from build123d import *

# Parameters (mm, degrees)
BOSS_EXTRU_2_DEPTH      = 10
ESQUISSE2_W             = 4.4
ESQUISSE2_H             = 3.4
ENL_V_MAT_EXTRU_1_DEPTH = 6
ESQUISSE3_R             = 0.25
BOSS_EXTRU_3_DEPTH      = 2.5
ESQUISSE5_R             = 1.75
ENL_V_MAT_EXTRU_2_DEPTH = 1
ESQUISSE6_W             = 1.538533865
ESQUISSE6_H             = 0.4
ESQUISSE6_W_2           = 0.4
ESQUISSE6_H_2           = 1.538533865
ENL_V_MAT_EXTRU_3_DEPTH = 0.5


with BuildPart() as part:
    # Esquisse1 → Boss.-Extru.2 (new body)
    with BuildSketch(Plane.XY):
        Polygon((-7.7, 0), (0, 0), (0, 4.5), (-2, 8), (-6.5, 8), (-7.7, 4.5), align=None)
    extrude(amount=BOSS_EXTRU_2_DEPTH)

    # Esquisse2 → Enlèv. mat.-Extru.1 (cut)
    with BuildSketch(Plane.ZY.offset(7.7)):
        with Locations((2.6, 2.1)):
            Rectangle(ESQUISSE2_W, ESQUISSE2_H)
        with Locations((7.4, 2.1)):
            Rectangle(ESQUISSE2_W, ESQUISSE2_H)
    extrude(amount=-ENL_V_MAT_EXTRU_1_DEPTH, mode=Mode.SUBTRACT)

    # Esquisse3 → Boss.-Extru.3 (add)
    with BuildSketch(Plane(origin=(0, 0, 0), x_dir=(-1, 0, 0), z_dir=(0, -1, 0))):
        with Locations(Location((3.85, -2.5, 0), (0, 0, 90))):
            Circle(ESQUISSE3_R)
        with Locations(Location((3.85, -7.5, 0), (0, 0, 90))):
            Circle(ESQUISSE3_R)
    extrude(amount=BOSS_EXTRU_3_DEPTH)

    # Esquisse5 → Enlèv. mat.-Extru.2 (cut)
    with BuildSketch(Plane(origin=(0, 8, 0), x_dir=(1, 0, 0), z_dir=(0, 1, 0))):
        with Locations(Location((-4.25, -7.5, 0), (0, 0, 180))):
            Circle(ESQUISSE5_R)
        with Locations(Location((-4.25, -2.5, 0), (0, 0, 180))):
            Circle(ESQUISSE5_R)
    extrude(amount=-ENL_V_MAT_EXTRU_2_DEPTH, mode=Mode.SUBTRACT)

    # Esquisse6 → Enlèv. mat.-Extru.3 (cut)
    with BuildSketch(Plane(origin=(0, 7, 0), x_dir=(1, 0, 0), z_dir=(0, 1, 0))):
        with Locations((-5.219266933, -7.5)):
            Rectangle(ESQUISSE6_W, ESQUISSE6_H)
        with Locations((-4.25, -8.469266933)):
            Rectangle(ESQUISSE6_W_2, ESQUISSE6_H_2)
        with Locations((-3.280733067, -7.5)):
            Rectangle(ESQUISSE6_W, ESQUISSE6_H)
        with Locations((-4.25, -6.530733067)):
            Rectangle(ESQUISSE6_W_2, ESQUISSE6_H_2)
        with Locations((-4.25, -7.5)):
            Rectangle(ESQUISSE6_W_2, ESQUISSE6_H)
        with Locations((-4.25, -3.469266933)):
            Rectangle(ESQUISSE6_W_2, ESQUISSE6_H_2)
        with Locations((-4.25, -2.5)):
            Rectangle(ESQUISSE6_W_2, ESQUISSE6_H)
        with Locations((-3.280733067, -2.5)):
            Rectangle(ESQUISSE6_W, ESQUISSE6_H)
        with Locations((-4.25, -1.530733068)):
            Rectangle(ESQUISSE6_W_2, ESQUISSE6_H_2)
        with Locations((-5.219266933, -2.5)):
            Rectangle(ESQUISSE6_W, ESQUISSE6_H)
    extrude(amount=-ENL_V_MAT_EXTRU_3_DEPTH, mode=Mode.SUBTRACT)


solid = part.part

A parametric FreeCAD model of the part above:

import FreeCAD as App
import Part
import Sketcher
from FreeCAD import Vector
Q = App.Units.Quantity

doc = App.newDocument("Part")
body = doc.addObject("PartDesign::Body", "Body")

sketch1 = doc.addObject("Sketcher::SketchObject", "Sketch")
body.addObject(sketch1)
sketch1.AttachmentSupport = (doc.XY_Plane, [""])
sketch1.MapMode = "FlatFace"
sketch1.addGeometry(Part.LineSegment(Vector(-7.7, 0, 0), Vector(0, 0, 0)), False)
sketch1.addGeometry(Part.LineSegment(Vector(0, 0, 0), Vector(0, 4.5, 0)), False)
sketch1.addGeometry(Part.LineSegment(Vector(0, 4.5, 0), Vector(-2, 8, 0)), False)
sketch1.addGeometry(Part.LineSegment(Vector(-2, 8, 0), Vector(-6.5, 8, 0)), False)
sketch1.addGeometry(Part.LineSegment(Vector(-6.5, 8, 0), Vector(-7.7, 4.5, 0)), False)
sketch1.addGeometry(Part.LineSegment(Vector(-7.7, 4.5, 0), Vector(-7.7, 0, 0)), False)
sketch1.addConstraint(Sketcher.Constraint("Coincident", 0, 2, 1, 1))
sketch1.addConstraint(Sketcher.Constraint("Coincident", 1, 2, 2, 1))
sketch1.addConstraint(Sketcher.Constraint("Coincident", 2, 2, 3, 1))
sketch1.addConstraint(Sketcher.Constraint("Coincident", 3, 2, 4, 1))
sketch1.addConstraint(Sketcher.Constraint("Coincident", 4, 2, 5, 1))
sketch1.addConstraint(Sketcher.Constraint("Coincident", 5, 2, 0, 1))
sketch1.addConstraint(Sketcher.Constraint("Horizontal", 0))
sketch1.addConstraint(Sketcher.Constraint("Vertical", 1))
sketch1.addConstraint(Sketcher.Constraint("Horizontal", 3))
sketch1.addConstraint(Sketcher.Constraint("Vertical", 5))
sketch1.addConstraint(Sketcher.Constraint("Coincident", 0, 2, -1, 1))
sketch1.addConstraint(Sketcher.Constraint("Horizontal", 1, 2, 4, 2))
sketch1.addConstraint(Sketcher.Constraint("Equal", 3, 1))
sketch1.addConstraint(Sketcher.Constraint("DistanceX", 0, 1, 0, 2, Q("7.7 mm")))
sketch1.addConstraint(Sketcher.Constraint("DistanceX", 3, 2, 3, 1, Q("4.5 mm")))
sketch1.addConstraint(Sketcher.Constraint("DistanceX", 2, 2, -1, 1, Q("2 mm")))
sketch1.addConstraint(Sketcher.Constraint("DistanceY", -1, 1, 2, 2, Q("8 mm")))
pad1 = doc.addObject("PartDesign::Pad", "Pad")
body.addObject(pad1)
pad1.Profile = sketch1
pad1.Length = 10

sketch2 = doc.addObject("Sketcher::SketchObject", "Sketch001")
body.addObject(sketch2)
sketch2.AttachmentSupport = (doc.YZ_Plane, [""])
sketch2.MapMode = "FlatFace"
sketch2.AttachmentOffset = App.Placement(Vector(0, 0, -7.7), App.Rotation())
sketch2.addGeometry(Part.LineSegment(Vector(3.8, 0.4, 0), Vector(0.4, 0.4, 0)), False)
sketch2.addGeometry(Part.LineSegment(Vector(0.4, 0.4, 0), Vector(0.4, 4.8, 0)), False)
sketch2.addGeometry(Part.LineSegment(Vector(0.4, 4.8, 0), Vector(3.8, 4.8, 0)), False)
sketch2.addGeometry(Part.LineSegment(Vector(3.8, 4.8, 0), Vector(3.8, 0.4, 0)), False)
sketch2.addGeometry(Part.LineSegment(Vector(3.8, 5.2, 0), Vector(0.4, 5.2, 0)), False)
sketch2.addGeometry(Part.LineSegment(Vector(0.4, 5.2, 0), Vector(0.4, 9.6, 0)), False)
sketch2.addGeometry(Part.LineSegment(Vector(0.4, 9.6, 0), Vector(3.8, 9.6, 0)), False)
sketch2.addGeometry(Part.LineSegment(Vector(3.8, 9.6, 0), Vector(3.8, 5.2, 0)), False)
sketch2.addConstraint(Sketcher.Constraint("Coincident", 0, 2, 1, 1))
sketch2.addConstraint(Sketcher.Constraint("Coincident", 1, 2, 2, 1))
sketch2.addConstraint(Sketcher.Constraint("Coincident", 2, 2, 3, 1))
sketch2.addConstraint(Sketcher.Constraint("Coincident", 3, 2, 0, 1))
sketch2.addConstraint(Sketcher.Constraint("Coincident", 4, 2, 5, 1))
sketch2.addConstraint(Sketcher.Constraint("Coincident", 5, 2, 6, 1))
sketch2.addConstraint(Sketcher.Constraint("Coincident", 6, 2, 7, 1))
sketch2.addConstraint(Sketcher.Constraint("Coincident", 7, 2, 4, 1))
sketch2.addConstraint(Sketcher.Constraint("Horizontal", 0))
sketch2.addConstraint(Sketcher.Constraint("Vertical", 1))
sketch2.addConstraint(Sketcher.Constraint("Horizontal", 2))
sketch2.addConstraint(Sketcher.Constraint("Vertical", 3))
sketch2.addConstraint(Sketcher.Constraint("Horizontal", 4))
sketch2.addConstraint(Sketcher.Constraint("Vertical", 5))
sketch2.addConstraint(Sketcher.Constraint("Horizontal", 6))
sketch2.addConstraint(Sketcher.Constraint("Vertical", 7))
sketch2.addConstraint(Sketcher.Constraint("Vertical", 1, 2, 4, 2))
sketch2.addConstraint(Sketcher.Constraint("Vertical", 3, 2, 6, 2))
sketch2.addConstraint(Sketcher.Constraint("Equal", 3, 5))
sketch2.addConstraint(Sketcher.Constraint("DistanceX", 0, 2, 0, 1, Q("3.4 mm")))
sketch2.addConstraint(Sketcher.Constraint("DistanceY", 1, 1, 1, 2, Q("4.4 mm")))
sketch2.addConstraint(Sketcher.Constraint("DistanceX", -1, 1, 0, 2, Q("0.4 mm")))
sketch2.addConstraint(Sketcher.Constraint("DistanceY", -1, 1, 0, 2, Q("0.4 mm")))
sketch2.addConstraint(Sketcher.Constraint("DistanceY", -1, 1, 4, 2, Q("5.2 mm")))
pocket1 = doc.addObject("PartDesign::Pocket", "Pocket")
body.addObject(pocket1)
pocket1.Profile = sketch2
pocket1.Length = 6
pocket1.Reversed = True

sketch3 = doc.addObject("Sketcher::SketchObject", "Sketch002")
body.addObject(sketch3)
sketch3.AttachmentSupport = (doc.XZ_Plane, [""])
sketch3.MapMode = "FlatFace"
sketch3.addGeometry(Part.Circle(Vector(-3.85, 2.5, 0), Vector(0, 0, 1), 0.25), False)
sketch3.addGeometry(Part.Circle(Vector(-3.85, 7.5, 0), Vector(0, 0, 1), 0.25), False)
sketch3.addConstraint(Sketcher.Constraint("Equal", 0, 1))
sketch3.addConstraint(Sketcher.Constraint("Vertical", 0, 3, 1, 3))
sketch3.addConstraint(Sketcher.Constraint("Diameter", 0, Q("0.5 mm")))
sketch3.addConstraint(Sketcher.Constraint("DistanceY", 0, 3, 1, 3, Q("5 mm")))
sketch3.addConstraint(Sketcher.Constraint("DistanceY", -1, 1, 0, 3, Q("2.5 mm")))
sketch3.addConstraint(Sketcher.Constraint("DistanceX", 0, 3, -1, 1, Q("3.85 mm")))
pad2 = doc.addObject("PartDesign::Pad", "Pad001")
body.addObject(pad2)
pad2.Profile = sketch3
pad2.Length = 2.5

sketch4 = doc.addObject("Sketcher::SketchObject", "Sketch003")
body.addObject(sketch4)
sketch4.AttachmentSupport = (doc.XZ_Plane, [""])
sketch4.MapMode = "FlatFace"
sketch4.AttachmentOffset = App.Placement(Vector(0, 0, -8), App.Rotation())
sketch4.addGeometry(Part.Circle(Vector(-4.2, 7.5, 0), Vector(0, 0, 1), 1.8), False)
sketch4.addGeometry(Part.Circle(Vector(-4.2, 2.5, 0), Vector(0, 0, 1), 1.8), False)
sketch4.addConstraint(Sketcher.Constraint("Equal", 0, 1))
sketch4.addConstraint(Sketcher.Constraint("Vertical", 0, 3, 1, 3))
sketch4.addConstraint(Sketcher.Constraint("Diameter", 0, Q("3.5 mm")))
sketch4.addConstraint(Sketcher.Constraint("DistanceY", 1, 3, 0, 3, Q("5 mm")))
sketch4.addConstraint(Sketcher.Constraint("DistanceY", -1, 1, 0, 3, Q("7.5 mm")))
sketch4.addConstraint(Sketcher.Constraint("DistanceX", 0, 3, -1, 1, Q("4.25 mm")))
pocket2 = doc.addObject("PartDesign::Pocket", "Pocket001")
body.addObject(pocket2)
pocket2.Profile = sketch4
pocket2.Length = 1
pocket2.Reversed = True

sketch5 = doc.addObject("Sketcher::SketchObject", "Sketch004")
body.addObject(sketch5)
sketch5.AttachmentSupport = (doc.XZ_Plane, [""])
sketch5.MapMode = "FlatFace"
sketch5.AttachmentOffset = App.Placement(Vector(0, 0, -7), App.Rotation())
sketch5.addGeometry(Part.LineSegment(Vector(-5.99, 7.3, 0), Vector(-5.99, 7.7, 0)), False)
sketch5.addGeometry(Part.LineSegment(Vector(-5.99, 7.7, 0), Vector(-4.45, 7.7, 0)), False)
sketch5.addGeometry(Part.LineSegment(Vector(-4.45, 7.7, 0), Vector(-4.45, 9.24, 0)), False)
sketch5.addGeometry(Part.LineSegment(Vector(-4.45, 9.24, 0), Vector(-4.05, 9.24, 0)), False)
sketch5.addGeometry(Part.LineSegment(Vector(-4.05, 9.24, 0), Vector(-4.05, 7.7, 0)), False)
sketch5.addGeometry(Part.LineSegment(Vector(-4.05, 7.7, 0), Vector(-2.51, 7.7, 0)), False)
sketch5.addGeometry(Part.LineSegment(Vector(-2.51, 7.7, 0), Vector(-2.51, 7.3, 0)), False)
sketch5.addGeometry(Part.LineSegment(Vector(-2.51, 7.3, 0), Vector(-4.05, 7.3, 0)), False)
sketch5.addGeometry(Part.LineSegment(Vector(-4.05, 7.3, 0), Vector(-4.05, 5.76, 0)), False)
sketch5.addGeometry(Part.LineSegment(Vector(-4.05, 5.76, 0), Vector(-4.45, 5.76, 0)), False)
sketch5.addGeometry(Part.LineSegment(Vector(-4.45, 5.76, 0), Vector(-4.45, 7.3, 0)), False)
sketch5.addGeometry(Part.LineSegment(Vector(-4.45, 7.3, 0), Vector(-5.99, 7.3, 0)), False)
sketch5.addGeometry(Part.LineSegment(Vector(-4.45, 4.24, 0), Vector(-4.05, 4.24, 0)), False)
sketch5.addGeometry(Part.LineSegment(Vector(-4.05, 4.24, 0), Vector(-4.05, 2.7, 0)), False)
sketch5.addGeometry(Part.LineSegment(Vector(-4.05, 2.7, 0), Vector(-2.51, 2.7, 0)), False)
sketch5.addGeometry(Part.LineSegment(Vector(-2.51, 2.7, 0), Vector(-2.51, 2.3, 0)), False)
sketch5.addGeometry(Part.LineSegment(Vector(-2.51, 2.3, 0), Vector(-4.05, 2.3, 0)), False)
sketch5.addGeometry(Part.LineSegment(Vector(-4.05, 2.3, 0), Vector(-4.05, 0.76, 0)), False)
sketch5.addGeometry(Part.LineSegment(Vector(-4.05, 0.76, 0), Vector(-4.45, 0.76, 0)), False)
sketch5.addGeometry(Part.LineSegment(Vector(-4.45, 0.76, 0), Vector(-4.45, 2.3, 0)), False)
sketch5.addGeometry(Part.LineSegment(Vector(-4.45, 2.3, 0), Vector(-5.99, 2.3, 0)), False)
sketch5.addGeometry(Part.LineSegment(Vector(-5.99, 2.3, 0), Vector(-5.99, 2.7, 0)), False)
sketch5.addGeometry(Part.LineSegment(Vector(-5.99, 2.7, 0), Vector(-4.45, 2.7, 0)), False)
sketch5.addGeometry(Part.LineSegment(Vector(-4.45, 2.7, 0), Vector(-4.45, 4.24, 0)), False)
sketch5.addConstraint(Sketcher.Constraint("Coincident", 0, 2, 1, 1))
sketch5.addConstraint(Sketcher.Constraint("Coincident", 1, 2, 2, 1))
sketch5.addConstraint(Sketcher.Constraint("Coincident", 2, 2, 3, 1))
sketch5.addConstraint(Sketcher.Constraint("Coincident", 3, 2, 4, 1))
sketch5.addConstraint(Sketcher.Constraint("Coincident", 4, 2, 5, 1))
sketch5.addConstraint(Sketcher.Constraint("Coincident", 5, 2, 6, 1))
sketch5.addConstraint(Sketcher.Constraint("Coincident", 6, 2, 7, 1))
sketch5.addConstraint(Sketcher.Constraint("Coincident", 7, 2, 8, 1))
sketch5.addConstraint(Sketcher.Constraint("Coincident", 8, 2, 9, 1))
sketch5.addConstraint(Sketcher.Constraint("Coincident", 9, 2, 10, 1))
sketch5.addConstraint(Sketcher.Constraint("Coincident", 10, 2, 11, 1))
sketch5.addConstraint(Sketcher.Constraint("Coincident", 11, 2, 0, 1))
sketch5.addConstraint(Sketcher.Constraint("Coincident", 12, 2, 13, 1))
sketch5.addConstraint(Sketcher.Constraint("Coincident", 13, 2, 14, 1))
sketch5.addConstraint(Sketcher.Constraint("Coincident", 14, 2, 15, 1))
sketch5.addConstraint(Sketcher.Constraint("Coincident", 15, 2, 16, 1))
sketch5.addConstraint(Sketcher.Constraint("Coincident", 16, 2, 17, 1))
sketch5.addConstraint(Sketcher.Constraint("Coincident", 17, 2, 18, 1))
sketch5.addConstraint(Sketcher.Constraint("Coincident", 18, 2, 19, 1))
sketch5.addConstraint(Sketcher.Constraint("Coincident", 19, 2, 20, 1))
sketch5.addConstraint(Sketcher.Constraint("Coincident", 20, 2, 21, 1))
sketch5.addConstraint(Sketcher.Constraint("Coincident", 21, 2, 22, 1))
sketch5.addConstraint(Sketcher.Constraint("Coincident", 22, 2, 23, 1))
sketch5.addConstraint(Sketcher.Constraint("Coincident", 23, 2, 12, 1))
sketch5.addConstraint(Sketcher.Constraint("Vertical", 0))
sketch5.addConstraint(Sketcher.Constraint("Horizontal", 1))
sketch5.addConstraint(Sketcher.Constraint("Vertical", 2))
sketch5.addConstraint(Sketcher.Constraint("Horizontal", 3))
sketch5.addConstraint(Sketcher.Constraint("Vertical", 4))
sketch5.addConstraint(Sketcher.Constraint("Horizontal", 5))
sketch5.addConstraint(Sketcher.Constraint("Vertical", 6))
sketch5.addConstraint(Sketcher.Constraint("Horizontal", 7))
sketch5.addConstraint(Sketcher.Constraint("Vertical", 8))
sketch5.addConstraint(Sketcher.Constraint("Horizontal", 9))
sketch5.addConstraint(Sketcher.Constraint("Vertical", 10))
sketch5.addConstraint(Sketcher.Constraint("Horizontal", 11))
sketch5.addConstraint(Sketcher.Constraint("Horizontal", 12))
sketch5.addConstraint(Sketcher.Constraint("Vertical", 13))
sketch5.addConstraint(Sketcher.Constraint("Horizontal", 14))
sketch5.addConstraint(Sketcher.Constraint("Vertical", 15))
sketch5.addConstraint(Sketcher.Constraint("Horizontal", 16))
sketch5.addConstraint(Sketcher.Constraint("Vertical", 17))
sketch5.addConstraint(Sketcher.Constraint("Horizontal", 18))
sketch5.addConstraint(Sketcher.Constraint("Vertical", 19))
sketch5.addConstraint(Sketcher.Constraint("Horizontal", 20))
sketch5.addConstraint(Sketcher.Constraint("Vertical", 21))
sketch5.addConstraint(Sketcher.Constraint("Horizontal", 22))
sketch5.addConstraint(Sketcher.Constraint("Vertical", 23))
sketch5.addConstraint(Sketcher.Constraint("Horizontal", 1, 2, 4, 2))
sketch5.addConstraint(Sketcher.Constraint("Horizontal", 7, 2, 10, 2))
sketch5.addConstraint(Sketcher.Constraint("Horizontal", 16, 2, 19, 2))
sketch5.addConstraint(Sketcher.Constraint("Horizontal", 14, 2, 21, 2))
sketch5.addConstraint(Sketcher.Constraint("Vertical", 4, 2, 7, 2))
sketch5.addConstraint(Sketcher.Constraint("Vertical", 2, 2, 9, 2))
sketch5.addConstraint(Sketcher.Constraint("Vertical", 8, 2, 12, 2))
sketch5.addConstraint(Sketcher.Constraint("Vertical", 6, 2, 14, 2))
sketch5.addConstraint(Sketcher.Constraint("Vertical", 13, 2, 16, 2))
sketch5.addConstraint(Sketcher.Constraint("Vertical", 10, 2, 18, 2))
sketch5.addConstraint(Sketcher.Constraint("Vertical", 11, 2, 20, 2))
sketch5.addConstraint(Sketcher.Constraint("Vertical", 19, 2, 22, 2))
sketch5.addConstraint(Sketcher.Constraint("Equal", 1, 5))
sketch5.addConstraint(Sketcher.Constraint("Equal", 18, 0))
sketch5.addConstraint(Sketcher.Constraint("Equal", 22, 2))
sketch5.addConstraint(Sketcher.Constraint("Equal", 4, 8))
sketch5.addConstraint(Sketcher.Constraint("Equal", 10, 13))
sketch5.addConstraint(Sketcher.Constraint("Equal", 6, 15))
sketch5.addConstraint(Sketcher.Constraint("Equal", 13, 17))
sketch5.addConstraint(Sketcher.Constraint("DistanceX", 3, 1, 3, 2, Q("0.4 mm")))
sketch5.addConstraint(Sketcher.Constraint("DistanceY", -1, 1, 0, 2, Q("7.7 mm")))
sketch5.addConstraint(Sketcher.Constraint("DistanceY", -1, 1, 13, 2, Q("2.7 mm")))
sketch5.addConstraint(Sketcher.Constraint("DistanceX", 1, 2, -1, 1, Q("4.45 mm")))
sketch5.addConstraint(Sketcher.Constraint("DistanceX", 1, 1, 1, 2, Q("1.538534 mm")))
pocket3 = doc.addObject("PartDesign::Pocket", "Pocket002")
body.addObject(pocket3)
pocket3.Profile = sketch5
pocket3.Length = 0.5
pocket3.Reversed = True

doc.recompute()
